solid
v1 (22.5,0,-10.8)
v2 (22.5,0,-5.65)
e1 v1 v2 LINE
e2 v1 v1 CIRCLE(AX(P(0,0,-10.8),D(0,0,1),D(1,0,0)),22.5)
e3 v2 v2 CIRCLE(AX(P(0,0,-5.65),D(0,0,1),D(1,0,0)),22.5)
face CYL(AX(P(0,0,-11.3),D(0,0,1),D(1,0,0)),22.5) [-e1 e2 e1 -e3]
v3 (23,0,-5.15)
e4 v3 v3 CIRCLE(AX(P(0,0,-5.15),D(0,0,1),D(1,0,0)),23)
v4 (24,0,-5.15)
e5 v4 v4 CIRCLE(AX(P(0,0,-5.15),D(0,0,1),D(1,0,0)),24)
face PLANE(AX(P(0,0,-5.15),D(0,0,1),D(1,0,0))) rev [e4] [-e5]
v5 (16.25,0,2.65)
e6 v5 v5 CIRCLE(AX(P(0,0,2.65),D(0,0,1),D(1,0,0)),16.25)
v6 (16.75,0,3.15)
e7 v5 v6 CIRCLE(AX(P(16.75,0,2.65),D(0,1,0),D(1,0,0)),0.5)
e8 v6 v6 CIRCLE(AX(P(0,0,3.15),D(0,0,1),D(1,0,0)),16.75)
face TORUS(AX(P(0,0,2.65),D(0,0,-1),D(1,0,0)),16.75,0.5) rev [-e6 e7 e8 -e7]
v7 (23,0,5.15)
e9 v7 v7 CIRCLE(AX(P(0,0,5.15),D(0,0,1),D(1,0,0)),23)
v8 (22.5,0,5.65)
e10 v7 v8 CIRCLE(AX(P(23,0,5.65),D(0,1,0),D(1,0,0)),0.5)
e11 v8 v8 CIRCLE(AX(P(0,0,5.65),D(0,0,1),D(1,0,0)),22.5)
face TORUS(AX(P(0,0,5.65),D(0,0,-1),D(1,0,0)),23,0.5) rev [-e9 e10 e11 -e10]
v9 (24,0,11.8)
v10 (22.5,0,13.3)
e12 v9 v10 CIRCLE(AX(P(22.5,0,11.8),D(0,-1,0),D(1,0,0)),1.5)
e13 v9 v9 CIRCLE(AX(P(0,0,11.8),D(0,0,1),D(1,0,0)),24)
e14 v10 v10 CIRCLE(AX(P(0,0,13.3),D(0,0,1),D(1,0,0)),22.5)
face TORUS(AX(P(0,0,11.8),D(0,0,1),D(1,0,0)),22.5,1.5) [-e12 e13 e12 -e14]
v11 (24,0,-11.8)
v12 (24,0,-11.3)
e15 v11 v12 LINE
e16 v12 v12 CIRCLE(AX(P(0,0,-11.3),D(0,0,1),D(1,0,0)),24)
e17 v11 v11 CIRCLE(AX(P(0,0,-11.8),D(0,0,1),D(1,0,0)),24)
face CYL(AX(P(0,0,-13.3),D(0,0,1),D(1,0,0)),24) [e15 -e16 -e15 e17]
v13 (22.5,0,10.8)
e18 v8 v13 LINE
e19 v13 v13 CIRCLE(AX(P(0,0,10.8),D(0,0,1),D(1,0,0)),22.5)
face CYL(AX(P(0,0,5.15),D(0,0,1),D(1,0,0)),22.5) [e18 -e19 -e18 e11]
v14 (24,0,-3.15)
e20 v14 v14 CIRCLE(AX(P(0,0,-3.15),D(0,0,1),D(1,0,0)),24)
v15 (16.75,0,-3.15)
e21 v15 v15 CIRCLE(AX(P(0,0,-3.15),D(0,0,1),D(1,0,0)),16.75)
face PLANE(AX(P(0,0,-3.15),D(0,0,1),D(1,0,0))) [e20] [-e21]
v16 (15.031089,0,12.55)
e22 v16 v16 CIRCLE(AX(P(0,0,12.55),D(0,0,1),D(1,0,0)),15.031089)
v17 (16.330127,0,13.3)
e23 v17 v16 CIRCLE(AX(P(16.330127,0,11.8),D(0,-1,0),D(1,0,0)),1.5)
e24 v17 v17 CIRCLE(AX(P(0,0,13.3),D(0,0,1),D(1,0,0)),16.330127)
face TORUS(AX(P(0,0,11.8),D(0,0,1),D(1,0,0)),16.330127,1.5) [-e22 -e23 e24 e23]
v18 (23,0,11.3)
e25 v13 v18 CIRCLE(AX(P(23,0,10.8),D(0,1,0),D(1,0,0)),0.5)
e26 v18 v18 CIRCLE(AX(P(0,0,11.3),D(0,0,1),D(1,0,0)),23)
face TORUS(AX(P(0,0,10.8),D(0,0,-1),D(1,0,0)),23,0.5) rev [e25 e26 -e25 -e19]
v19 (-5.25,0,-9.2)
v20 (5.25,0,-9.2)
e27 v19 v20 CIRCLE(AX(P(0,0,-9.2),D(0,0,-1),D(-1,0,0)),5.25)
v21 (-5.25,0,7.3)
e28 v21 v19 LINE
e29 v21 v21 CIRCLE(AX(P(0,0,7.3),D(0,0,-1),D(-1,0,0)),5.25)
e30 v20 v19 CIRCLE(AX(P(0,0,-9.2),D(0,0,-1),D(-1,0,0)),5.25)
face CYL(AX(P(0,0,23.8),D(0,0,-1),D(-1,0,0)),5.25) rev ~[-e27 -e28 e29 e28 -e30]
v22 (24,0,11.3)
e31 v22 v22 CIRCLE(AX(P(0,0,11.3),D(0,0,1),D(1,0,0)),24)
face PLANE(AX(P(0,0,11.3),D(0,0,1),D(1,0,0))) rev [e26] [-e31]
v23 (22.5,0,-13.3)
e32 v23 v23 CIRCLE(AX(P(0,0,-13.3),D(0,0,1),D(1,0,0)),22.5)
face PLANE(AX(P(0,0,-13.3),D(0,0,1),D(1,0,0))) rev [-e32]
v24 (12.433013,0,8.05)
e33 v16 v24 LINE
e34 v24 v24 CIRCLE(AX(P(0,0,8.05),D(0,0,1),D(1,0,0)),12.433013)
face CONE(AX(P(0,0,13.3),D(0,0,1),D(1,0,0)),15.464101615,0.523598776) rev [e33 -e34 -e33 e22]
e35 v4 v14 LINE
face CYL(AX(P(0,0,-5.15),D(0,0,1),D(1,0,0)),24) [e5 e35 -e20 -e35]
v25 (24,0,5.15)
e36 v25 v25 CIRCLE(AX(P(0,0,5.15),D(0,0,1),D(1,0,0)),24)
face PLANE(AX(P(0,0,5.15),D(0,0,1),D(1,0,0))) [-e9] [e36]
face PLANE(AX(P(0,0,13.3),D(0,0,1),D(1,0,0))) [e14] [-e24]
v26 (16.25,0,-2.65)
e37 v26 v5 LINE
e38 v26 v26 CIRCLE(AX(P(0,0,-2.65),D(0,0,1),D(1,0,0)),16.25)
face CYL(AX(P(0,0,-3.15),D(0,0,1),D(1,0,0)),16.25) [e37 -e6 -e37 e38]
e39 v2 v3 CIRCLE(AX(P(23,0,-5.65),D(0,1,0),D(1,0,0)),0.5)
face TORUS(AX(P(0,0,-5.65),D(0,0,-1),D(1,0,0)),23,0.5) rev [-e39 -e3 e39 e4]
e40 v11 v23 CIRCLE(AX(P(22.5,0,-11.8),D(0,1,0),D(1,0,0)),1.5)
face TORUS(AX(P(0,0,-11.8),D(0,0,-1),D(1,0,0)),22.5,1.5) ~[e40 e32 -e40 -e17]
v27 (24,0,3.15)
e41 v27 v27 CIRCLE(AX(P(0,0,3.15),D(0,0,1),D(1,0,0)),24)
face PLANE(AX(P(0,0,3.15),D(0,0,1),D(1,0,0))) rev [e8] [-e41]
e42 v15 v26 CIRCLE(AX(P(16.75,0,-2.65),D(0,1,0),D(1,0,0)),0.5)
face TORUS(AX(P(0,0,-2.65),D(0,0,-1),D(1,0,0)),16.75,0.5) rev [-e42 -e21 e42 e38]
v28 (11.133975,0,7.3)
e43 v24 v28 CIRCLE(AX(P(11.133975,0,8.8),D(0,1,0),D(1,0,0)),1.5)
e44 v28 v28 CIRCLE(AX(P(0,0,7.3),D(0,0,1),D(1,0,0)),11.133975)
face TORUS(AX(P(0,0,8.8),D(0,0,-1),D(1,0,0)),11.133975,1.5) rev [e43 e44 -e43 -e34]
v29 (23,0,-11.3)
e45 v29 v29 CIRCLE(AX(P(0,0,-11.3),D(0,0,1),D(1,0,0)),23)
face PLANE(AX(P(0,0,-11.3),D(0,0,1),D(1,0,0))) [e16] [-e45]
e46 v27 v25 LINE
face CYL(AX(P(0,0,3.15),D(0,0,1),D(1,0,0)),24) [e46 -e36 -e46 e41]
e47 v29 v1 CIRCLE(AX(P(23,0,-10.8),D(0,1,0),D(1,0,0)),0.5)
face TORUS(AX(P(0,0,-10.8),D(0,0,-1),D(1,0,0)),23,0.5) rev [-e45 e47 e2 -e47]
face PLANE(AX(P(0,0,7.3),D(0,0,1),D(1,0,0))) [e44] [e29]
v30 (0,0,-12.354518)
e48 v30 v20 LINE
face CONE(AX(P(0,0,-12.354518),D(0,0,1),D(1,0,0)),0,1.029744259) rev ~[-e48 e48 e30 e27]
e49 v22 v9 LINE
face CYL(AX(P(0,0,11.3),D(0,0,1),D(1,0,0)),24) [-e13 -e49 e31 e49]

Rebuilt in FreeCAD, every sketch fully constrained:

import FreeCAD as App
import Part
import Sketcher

V = App.Vector
Q = App.Units.Quantity


def edges_at(feature, points):
    """Names of the edges that pass closest to the given points."""
    edges = feature.Shape.Edges
    near = lambda p: min(range(len(edges)), key=lambda i: edges[i].distToShape(Part.Vertex(*p))[0])
    return sorted({f"Edge{near(p) + 1}" for p in points})

doc = App.newDocument("Part")
body = doc.addObject("PartDesign::Body", "Body")

# Sketch on XZ plane
sketch1 = body.newObject("Sketcher::SketchObject", "Sketch")
sketch1.AttachmentSupport = (doc.getObject("XZ_Plane"), [""])
sketch1.MapMode = "FlatFace"
sketch1.addGeometry([
    Part.LineSegment(V(24, 13.3, 0), V(15.5, 13.3, 0)),  # 0
    Part.LineSegment(V(15.5, 13.3, 0), V(12, 7.3, 0)),  # 1
    Part.LineSegment(V(12, 7.3, 0), V(0, 7.3, 0)),  # 2
    Part.LineSegment(V(0, 7.3, 0), V(0, -13.3, 0)),  # 3
    Part.LineSegment(V(0, -13.3, 0), V(24, -13.3, 0)),  # 4
    Part.LineSegment(V(24, -13.3, 0), V(24, -11.3, 0)),  # 5
    Part.LineSegment(V(24, -11.3, 0), V(22.5, -11.3, 0)),  # 6
    Part.LineSegment(V(22.5, -11.3, 0), V(22.5, -5.2, 0)),  # 7
    Part.LineSegment(V(22.5, -5.2, 0), V(24, -5.2, 0)),  # 8
    Part.LineSegment(V(24, -5.2, 0), V(24, -3.1, 0)),  # 9
    Part.LineSegment(V(24, -3.1, 0), V(16.2, -3.1, 0)),  # 10
    Part.LineSegment(V(16.2, -3.1, 0), V(16.2, 3.1, 0)),  # 11
    Part.LineSegment(V(16.2, 3.1, 0), V(24, 3.1, 0)),  # 12
    Part.LineSegment(V(24, 3.1, 0), V(24, 5.2, 0)),  # 13
    Part.LineSegment(V(24, 5.2, 0), V(22.5, 5.2, 0)),  # 14
    Part.LineSegment(V(22.5, 5.2, 0), V(22.5, 11.3, 0)),  # 15
    Part.LineSegment(V(22.5, 11.3, 0), V(24, 11.3, 0)),  # 16
    Part.LineSegment(V(24, 11.3, 0), V(24, 13.3, 0)),  # 17
], False)
sketch1.addConstraint([
    Sketcher.Constraint("Coincident", 0, 2, 1, 1),
    Sketcher.Constraint("Coincident", 1, 2, 2, 1),
    Sketcher.Constraint("Coincident", 2, 2, 3, 1),
    Sketcher.Constraint("Coincident", 3, 2, 4, 1),
    Sketcher.Constraint("Coincident", 4, 2, 5, 1),
    Sketcher.Constraint("Coincident", 5, 2, 6, 1),
    Sketcher.Constraint("Coincident", 6, 2, 7, 1),
    Sketcher.Constraint("Coincident", 7, 2, 8, 1),
    Sketcher.Constraint("Coincident", 8, 2, 9, 1),
    Sketcher.Constraint("Coincident", 9, 2, 10, 1),
    Sketcher.Constraint("Coincident", 10, 2, 11, 1),
    Sketcher.Constraint("Coincident", 11, 2, 12, 1),
    Sketcher.Constraint("Coincident", 12, 2, 13, 1),
    Sketcher.Constraint("Coincident", 13, 2, 14, 1),
    Sketcher.Constraint("Coincident", 14, 2, 15, 1),
    Sketcher.Constraint("Coincident", 15, 2, 16, 1),
    Sketcher.Constraint("Coincident", 16, 2, 17, 1),
    Sketcher.Constraint("Coincident", 17, 2, 0, 1),
    Sketcher.Constraint("Horizontal", 0),
    Sketcher.Constraint("Horizontal", 2),
    Sketcher.Constraint("Vertical", 3),
    Sketcher.Constraint("Horizontal", 4),
    Sketcher.Constraint("Vertical", 5),
    Sketcher.Constraint("Horizontal", 6),
    Sketcher.Constraint("Vertical", 7),
    Sketcher.Constraint("Horizontal", 8),
    Sketcher.Constraint("Vertical", 9),
    Sketcher.Constraint("Horizontal", 10),
    Sketcher.Constraint("Vertical", 11),
    Sketcher.Constraint("Horizontal", 12),
    Sketcher.Constraint("Vertical", 13),
    Sketcher.Constraint("Horizontal", 14),
    Sketcher.Constraint("Vertical", 15),
    Sketcher.Constraint("Horizontal", 16),
    Sketcher.Constraint("Vertical", 17),
    Sketcher.Constraint("Symmetric", 9, 2, 12, 2, -1),
    Sketcher.Constraint("Symmetric", 7, 2, 14, 2, -1),
    Sketcher.Constraint("Symmetric", 5, 2, 16, 2, -1),
    Sketcher.Constraint("PointOnObject", 2, 2, -2),
    Sketcher.Constraint("Vertical", 5, 2, 8, 2),
    Sketcher.Constraint("Equal", 5, 9),
    Sketcher.Constraint("Equal", 13, 17),
    Sketcher.Constraint("DistanceX", 2, 2, 2, 1, Q("12 mm")),
    Sketcher.Constraint("DistanceX", 4, 1, 4, 2, Q("24 mm")),
    Sketcher.Constraint("DistanceY", 5, 1, 5, 2, Q("2 mm")),
    Sketcher.Constraint("Angle", 1, Q("-120 deg")),
    Sketcher.Constraint("DistanceX", 6, 2, 6, 1, Q("1.5 mm")),
    Sketcher.Constraint("DistanceY", 3, 2, 3, 1, Q("20.6 mm")),
    Sketcher.Constraint("DistanceY", 11, 1, 11, 2, Q("6.3 mm")),
    Sketcher.Constraint("DistanceY", 1, 2, 0, 2, Q("6 mm")),
    Sketcher.Constraint("DistanceX", 10, 2, 10, 1, Q("7.75 mm")),
])
revolution = body.newObject("PartDesign::Revolution", "Revolution")
revolution.Profile = sketch1
revolution.ReferenceAxis = (sketch1, ["V_Axis"])
revolution.Angle = 360
doc.recompute()

fillet = body.newObject("PartDesign::Fillet", "Fillet")
fillet.Base = (revolution, edges_at(revolution, [
    (-16.25, 0, -3.15),
    (-16.25, 0, 3.15),
    (-22.5, 0, 11.3),
    (-22.5, 0, 5.15),
    (-22.5, 0, -11.3),
    (-22.5, 0, -5.15),
]))
fillet.Radius = 0.5
doc.recompute()

fillet2 = body.newObject("PartDesign::Fillet", "Fillet001")
fillet2.Base = (fillet, edges_at(fillet, [
    (-24, 0, 13.3),
    (-24, 0, -13.3),
    (-12, 0, 7.3),
    (-15.464, 0, 13.3),
]))
fillet2.Radius = 1.5

# Sketch on XY plane
sketch2 = body.newObject("Sketcher::SketchObject", "Sketch001")
sketch2.AttachmentSupport = (doc.getObject("XY_Plane"), [""])
sketch2.MapMode = "FlatFace"
sketch2.AttachmentOffset = App.Placement(V(0, 0, 7.3), App.Rotation())
sketch2.addGeometry(Part.Circle(V(0, 0, 0), V(0, 0, 1), 5), False)
sketch2.addConstraint([
    Sketcher.Constraint("Coincident", 0, 3, -1, 1),
    Sketcher.Constraint("Diameter", 0, Q("10.5 mm")),
])
doc.recompute()
hole = body.newObject("PartDesign::Hole", "Hole")
hole.Profile = sketch2
hole.ThreadType = "None"
hole.Diameter = 10.5
hole.DepthType = "Dimension"
hole.Depth = 16.5
hole.DrillPoint = "Angled"
hole.DrillPointAngle = 118

doc.recompute()
